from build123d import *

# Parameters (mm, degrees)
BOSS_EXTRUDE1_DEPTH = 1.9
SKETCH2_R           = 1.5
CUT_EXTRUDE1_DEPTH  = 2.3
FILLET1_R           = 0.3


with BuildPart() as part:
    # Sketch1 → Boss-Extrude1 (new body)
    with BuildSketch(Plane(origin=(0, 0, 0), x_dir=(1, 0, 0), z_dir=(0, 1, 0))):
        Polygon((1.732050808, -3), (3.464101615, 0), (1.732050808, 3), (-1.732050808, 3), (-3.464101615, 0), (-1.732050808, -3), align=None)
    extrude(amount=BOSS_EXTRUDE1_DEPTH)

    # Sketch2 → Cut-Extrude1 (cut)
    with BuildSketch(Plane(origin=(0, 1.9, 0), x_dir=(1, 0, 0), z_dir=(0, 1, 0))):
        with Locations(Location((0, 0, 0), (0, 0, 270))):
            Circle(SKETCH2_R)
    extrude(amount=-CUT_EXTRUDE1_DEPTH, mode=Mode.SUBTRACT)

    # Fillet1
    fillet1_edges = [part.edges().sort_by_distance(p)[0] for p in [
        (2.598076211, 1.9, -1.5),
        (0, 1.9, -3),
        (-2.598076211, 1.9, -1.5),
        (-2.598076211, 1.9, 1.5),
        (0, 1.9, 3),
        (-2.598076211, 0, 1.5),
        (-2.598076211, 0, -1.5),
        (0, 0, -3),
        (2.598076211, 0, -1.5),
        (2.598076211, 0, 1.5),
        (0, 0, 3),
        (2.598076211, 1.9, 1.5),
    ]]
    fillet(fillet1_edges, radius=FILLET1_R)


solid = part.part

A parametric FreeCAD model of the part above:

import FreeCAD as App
import Part
import Sketcher
Q = App.Units.Quantity


def edges_at(feature, points):
    """Names of the edges that pass closest to the given points."""
    edges = feature.Shape.Edges
    near = lambda p: min(range(len(edges)), key=lambda i: edges[i].distToShape(Part.Vertex(*p))[0])
    return sorted({f"Edge{near(p) + 1}" for p in points})


def add_polygon(sketch, points):
    """Adds a closed chain of lines whose ends are joined by coincident constraints."""
    first, n = sketch.GeometryCount, len(points)
    for a, b in zip(points, points[1:] + points[:1]):
        sketch.addGeometry(Part.LineSegment(App.Vector(*a, 0), App.Vector(*b, 0)), False)
    for i in range(n):
        sketch.addConstraint(Sketcher.Constraint("Coincident", first + i, 2, first + (i + 1) % n, 1))

doc = App.newDocument("Part")
body = doc.addObject("PartDesign::Body", "Body")

# Sketch on XZ plane
sketch1 = doc.addObject("Sketcher::SketchObject", "Sketch")
body.addObject(sketch1)
sketch1.AttachmentSupport = (doc.XZ_Plane, [""])
sketch1.MapMode = "FlatFace"
add_polygon(sketch1, [(1.7, 3), (3.5, 0), (1.7, -3), (-1.7, -3), (-3.5, 0), (-1.7, 3)])  # lines 0-5
sketch1.addConstraint([
    Sketcher.Constraint("Horizontal", 2),
    Sketcher.Constraint("Horizontal", 5),
    Sketcher.Constraint("Symmetric", 0, 2, 3, 2, -1, 1),
    Sketcher.Constraint("Symmetric", 1, 2, 4, 2, -1, 1),
    Sketcher.Constraint("PointOnObject", 0, 2, -1),
    Sketcher.Constraint("Parallel", 0, 3),
    Sketcher.Constraint("Vertical", 2, 2, 4, 2),
    Sketcher.Constraint("Angle", 0, Q("-60 deg")),
    Sketcher.Constraint("DistanceY", 1, 2, -1, 1, Q("3 mm")),
    Sketcher.Constraint("DistanceX", 2, 2, 2, 1, Q("3.464102 mm")),
])
pad1 = doc.addObject("PartDesign::Pad", "Pad")
body.addObject(pad1)
pad1.Profile = sketch1
pad1.Length = 1.9
pad1.Reversed = True

# Sketch on XZ plane
sketch2 = doc.addObject("Sketcher::SketchObject", "Sketch001")
body.addObject(sketch2)
sketch2.AttachmentSupport = (doc.XZ_Plane, [""])
sketch2.MapMode = "FlatFace"
sketch2.AttachmentOffset = App.Placement(App.Vector(0, 0, -1.9), App.Rotation())
sketch2.addGeometry(Part.Circle(App.Vector(0, 0, 0), App.Vector(0, 0, 1), 1.5), False)
sketch2.addConstraint([
    Sketcher.Constraint("Coincident", 0, 3, -1, 1),
    Sketcher.Constraint("Diameter", 0, Q("3 mm")),
])
pocket1 = doc.addObject("PartDesign::Pocket", "Pocket")
body.addObject(pocket1)
pocket1.Profile = sketch2
pocket1.Length = 2.3
pocket1.Reversed = True
doc.recompute()

fillet = doc.addObject("PartDesign::Fillet", "Fillet")
body.addObject(fillet)
fillet.Base = (pocket1, edges_at(pocket1, [
    (2.598, 1.9, -1.5),
    (0, 1.9, -3),
    (-2.598, 1.9, -1.5),
    (-2.598, 1.9, 1.5),
    (0, 1.9, 3),
    (-2.598, 0, 1.5),
    (-2.598, 0, -1.5),
    (0, 0, -3),
    (2.598, 0, -1.5),
    (2.598, 0, 1.5),
    (0, 0, 3),
    (2.598, 1.9, 1.5),
]))
fillet.Radius = 0.3

doc.recompute()
